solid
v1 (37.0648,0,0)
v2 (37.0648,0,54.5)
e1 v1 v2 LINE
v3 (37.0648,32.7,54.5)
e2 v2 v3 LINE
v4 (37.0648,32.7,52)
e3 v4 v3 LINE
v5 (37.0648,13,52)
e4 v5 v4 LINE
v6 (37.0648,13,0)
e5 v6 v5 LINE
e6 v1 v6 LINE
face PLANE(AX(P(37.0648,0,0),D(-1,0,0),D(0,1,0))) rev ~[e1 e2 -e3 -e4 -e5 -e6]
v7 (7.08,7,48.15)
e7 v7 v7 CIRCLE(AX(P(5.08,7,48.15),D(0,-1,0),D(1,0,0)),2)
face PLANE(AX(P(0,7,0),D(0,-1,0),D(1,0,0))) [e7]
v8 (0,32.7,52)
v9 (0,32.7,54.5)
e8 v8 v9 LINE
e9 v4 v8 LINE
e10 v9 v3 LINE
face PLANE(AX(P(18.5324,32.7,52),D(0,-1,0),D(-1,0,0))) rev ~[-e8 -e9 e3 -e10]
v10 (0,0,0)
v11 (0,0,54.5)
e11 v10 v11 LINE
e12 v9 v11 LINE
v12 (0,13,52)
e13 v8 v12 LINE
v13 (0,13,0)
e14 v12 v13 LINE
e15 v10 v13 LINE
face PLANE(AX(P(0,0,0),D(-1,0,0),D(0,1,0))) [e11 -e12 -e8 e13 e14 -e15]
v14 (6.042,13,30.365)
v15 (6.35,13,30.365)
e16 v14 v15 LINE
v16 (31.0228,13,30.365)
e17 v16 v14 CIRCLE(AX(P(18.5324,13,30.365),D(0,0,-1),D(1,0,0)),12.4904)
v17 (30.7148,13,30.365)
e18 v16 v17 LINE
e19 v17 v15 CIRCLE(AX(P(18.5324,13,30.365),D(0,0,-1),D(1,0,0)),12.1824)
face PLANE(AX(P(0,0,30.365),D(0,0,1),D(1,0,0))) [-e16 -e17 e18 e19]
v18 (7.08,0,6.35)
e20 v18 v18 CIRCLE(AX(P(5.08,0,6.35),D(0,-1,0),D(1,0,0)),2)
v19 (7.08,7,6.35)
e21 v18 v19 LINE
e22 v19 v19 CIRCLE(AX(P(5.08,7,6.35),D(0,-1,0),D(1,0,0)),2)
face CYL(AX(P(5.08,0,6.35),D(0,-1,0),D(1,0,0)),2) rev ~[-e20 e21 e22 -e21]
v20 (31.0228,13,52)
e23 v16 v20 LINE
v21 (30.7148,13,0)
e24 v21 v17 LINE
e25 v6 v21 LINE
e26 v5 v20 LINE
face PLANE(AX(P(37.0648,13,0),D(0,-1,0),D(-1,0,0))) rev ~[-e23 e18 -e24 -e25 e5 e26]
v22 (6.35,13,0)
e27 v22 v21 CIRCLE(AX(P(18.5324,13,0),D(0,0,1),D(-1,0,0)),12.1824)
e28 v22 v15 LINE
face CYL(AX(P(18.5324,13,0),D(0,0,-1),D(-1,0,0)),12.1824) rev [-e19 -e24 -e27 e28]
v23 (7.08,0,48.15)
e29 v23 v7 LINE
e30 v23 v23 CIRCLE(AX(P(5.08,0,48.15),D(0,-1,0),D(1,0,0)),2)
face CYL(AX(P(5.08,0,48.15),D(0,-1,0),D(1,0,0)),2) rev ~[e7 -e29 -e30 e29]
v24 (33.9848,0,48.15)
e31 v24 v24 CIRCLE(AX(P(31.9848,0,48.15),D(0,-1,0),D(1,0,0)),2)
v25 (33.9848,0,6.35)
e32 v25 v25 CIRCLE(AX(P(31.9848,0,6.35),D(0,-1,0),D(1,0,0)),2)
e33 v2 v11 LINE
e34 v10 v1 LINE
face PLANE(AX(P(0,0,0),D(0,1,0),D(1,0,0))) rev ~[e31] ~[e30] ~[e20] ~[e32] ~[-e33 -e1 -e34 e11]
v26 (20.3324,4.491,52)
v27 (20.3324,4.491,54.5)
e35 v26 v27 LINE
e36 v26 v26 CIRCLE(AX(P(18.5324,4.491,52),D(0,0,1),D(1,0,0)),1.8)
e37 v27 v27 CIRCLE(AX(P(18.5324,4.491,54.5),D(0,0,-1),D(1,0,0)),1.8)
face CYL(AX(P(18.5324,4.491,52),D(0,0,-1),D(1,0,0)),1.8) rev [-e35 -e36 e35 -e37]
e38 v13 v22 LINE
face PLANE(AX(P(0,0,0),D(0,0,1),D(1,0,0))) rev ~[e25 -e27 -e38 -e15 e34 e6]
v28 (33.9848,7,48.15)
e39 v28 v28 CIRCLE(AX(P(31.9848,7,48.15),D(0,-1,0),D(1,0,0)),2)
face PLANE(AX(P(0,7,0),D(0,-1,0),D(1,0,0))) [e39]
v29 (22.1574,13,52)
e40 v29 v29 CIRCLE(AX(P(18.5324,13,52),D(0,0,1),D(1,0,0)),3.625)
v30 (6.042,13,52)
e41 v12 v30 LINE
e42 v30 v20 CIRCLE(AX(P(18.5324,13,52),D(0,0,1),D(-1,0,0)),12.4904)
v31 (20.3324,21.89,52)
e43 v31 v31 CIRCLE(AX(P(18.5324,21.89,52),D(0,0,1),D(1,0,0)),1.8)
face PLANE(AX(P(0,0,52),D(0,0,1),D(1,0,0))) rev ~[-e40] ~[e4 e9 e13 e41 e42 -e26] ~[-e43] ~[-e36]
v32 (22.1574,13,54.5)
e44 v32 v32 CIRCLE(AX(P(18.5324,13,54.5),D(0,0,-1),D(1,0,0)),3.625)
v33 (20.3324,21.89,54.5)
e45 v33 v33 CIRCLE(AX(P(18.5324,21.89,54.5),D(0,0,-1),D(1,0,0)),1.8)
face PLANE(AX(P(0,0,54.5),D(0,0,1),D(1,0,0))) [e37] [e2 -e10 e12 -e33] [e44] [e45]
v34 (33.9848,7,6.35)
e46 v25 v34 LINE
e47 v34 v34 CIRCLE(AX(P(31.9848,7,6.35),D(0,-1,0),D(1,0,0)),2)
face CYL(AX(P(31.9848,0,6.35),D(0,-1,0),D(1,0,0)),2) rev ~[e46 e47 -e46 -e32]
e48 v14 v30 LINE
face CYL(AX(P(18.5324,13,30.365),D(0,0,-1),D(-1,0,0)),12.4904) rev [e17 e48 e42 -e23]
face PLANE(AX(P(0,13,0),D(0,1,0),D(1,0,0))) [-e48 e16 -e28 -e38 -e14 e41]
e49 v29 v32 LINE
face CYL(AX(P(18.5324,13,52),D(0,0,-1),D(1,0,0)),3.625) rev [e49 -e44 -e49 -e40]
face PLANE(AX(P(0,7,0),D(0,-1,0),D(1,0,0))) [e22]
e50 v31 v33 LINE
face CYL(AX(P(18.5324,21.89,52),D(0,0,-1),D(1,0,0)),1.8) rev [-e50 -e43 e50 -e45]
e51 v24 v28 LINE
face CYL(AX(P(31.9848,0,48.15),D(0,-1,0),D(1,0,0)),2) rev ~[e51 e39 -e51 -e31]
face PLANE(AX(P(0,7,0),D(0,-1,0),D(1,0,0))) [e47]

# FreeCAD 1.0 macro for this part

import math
import FreeCAD as App
import Part
import Sketcher
from FreeCAD import Vector
Q = App.Units.Quantity


def add_polygon(sketch, points):
    """Adds a closed chain of lines whose ends are joined by coincident constraints."""
    first, n = sketch.GeometryCount, len(points)
    for a, b in zip(points, points[1:] + points[:1]):
        sketch.addGeometry(Part.LineSegment(App.Vector(*a, 0), App.Vector(*b, 0)), False)
    for i in range(n):
        sketch.addConstraint(Sketcher.Constraint("Coincident", first + i, 2, first + (i + 1) % n, 1))

doc = App.newDocument("Part")
body = doc.addObject("PartDesign::Body", "Body")

# Sketch on XY plane
sketch1 = doc.addObject("Sketcher::SketchObject", "Sketch")
body.addObject(sketch1)
sketch1.AttachmentSupport = (doc.XY_Plane, [""])
sketch1.MapMode = "FlatFace"
sketch1.addGeometry(Part.LineSegment(Vector(0, 13, 0), Vector(0, 0, 0)), False)
sketch1.addGeometry(Part.LineSegment(Vector(0, 0, 0), Vector(37.0648, 0, 0)), False)
sketch1.addGeometry(Part.LineSegment(Vector(37.0648, 0, 0), Vector(37.0648, 13, 0)), False)
sketch1.addGeometry(Part.LineSegment(Vector(37.0648, 13, 0), Vector(30.7148, 13, 0)), False)
sketch1.addGeometry(Part.ArcOfCircle(Part.Circle(Vector(18.5324, 13, 0), Vector(0, 0, 1), 12.1824), math.radians(180), math.radians(360)), False)
sketch1.addGeometry(Part.LineSegment(Vector(6.35, 13, 0), Vector(0, 13, 0)), False)
sketch1.addConstraint(Sketcher.Constraint("Coincident", 0, 2, 1, 1))
sketch1.addConstraint(Sketcher.Constraint("Coincident", 1, 2, 2, 1))
sketch1.addConstraint(Sketcher.Constraint("Coincident", 2, 2, 3, 1))
sketch1.addConstraint(Sketcher.Constraint("Coincident", 3, 2, 4, 2))
sketch1.addConstraint(Sketcher.Constraint("Coincident", 4, 1, 5, 1))
sketch1.addConstraint(Sketcher.Constraint("Coincident", 5, 2, 0, 1))
sketch1.addConstraint(Sketcher.Constraint("Vertical", 0))
sketch1.addConstraint(Sketcher.Constraint("Horizontal", 1))
sketch1.addConstraint(Sketcher.Constraint("Vertical", 2))
sketch1.addConstraint(Sketcher.Constraint("Horizontal", 3))
sketch1.addConstraint(Sketcher.Constraint("Horizontal", 5))
sketch1.addConstraint(Sketcher.Constraint("Coincident", 0, 2, -1, 1))
sketch1.addConstraint(Sketcher.Constraint("Horizontal", 4, 3, 2, 2))
sketch1.addConstraint(Sketcher.Constraint("Horizontal", 3, 2, 4, 1))
sketch1.addConstraint(Sketcher.Constraint("Equal", 3, 5))
sketch1.addConstraint(Sketcher.Constraint("DistanceY", 0, 2, 0, 1, Q("13 mm")))
sketch1.addConstraint(Sketcher.Constraint("DistanceX", 3, 2, 3, 1, Q("6.35 mm")))
sketch1.addConstraint(Sketcher.Constraint("Radius", 4, Q("12.1824 mm")))
pad1 = doc.addObject("PartDesign::Pad", "Pad")
body.addObject(pad1)
pad1.Profile = sketch1
pad1.Length = 30.365

# Sketch on XY plane
sketch2 = doc.addObject("Sketcher::SketchObject", "Sketch001")
body.addObject(sketch2)
sketch2.AttachmentSupport = (doc.XY_Plane, [""])
sketch2.MapMode = "FlatFace"
sketch2.AttachmentOffset = App.Placement(Vector(0, 0, 30.365), App.Rotation())
sketch2.addGeometry(Part.LineSegment(Vector(6.042, 13, 0), Vector(0, 13, 0)), False)
sketch2.addGeometry(Part.LineSegment(Vector(0, 13, 0), Vector(0, 0, 0)), False)
sketch2.addGeometry(Part.LineSegment(Vector(0, 0, 0), Vector(37.0648, 0, 0)), False)
sketch2.addGeometry(Part.LineSegment(Vector(37.0648, 0, 0), Vector(37.0648, 13, 0)), False)
sketch2.addGeometry(Part.LineSegment(Vector(37.0648, 13, 0), Vector(31.0228, 13, 0)), False)
sketch2.addGeometry(Part.ArcOfCircle(Part.Circle(Vector(18.5324, 13, 0), Vector(0, 0, 1), 12.4904), math.radians(180), math.radians(360)), False)
sketch2.addConstraint(Sketcher.Constraint("Coincident", 0, 2, 1, 1))
sketch2.addConstraint(Sketcher.Constraint("Coincident", 1, 2, 2, 1))
sketch2.addConstraint(Sketcher.Constraint("Coincident", 2, 2, 3, 1))
sketch2.addConstraint(Sketcher.Constraint("Coincident", 3, 2, 4, 1))
sketch2.addConstraint(Sketcher.Constraint("Coincident", 4, 2, 5, 2))
sketch2.addConstraint(Sketcher.Constraint("Coincident", 5, 1, 0, 1))
sketch2.addConstraint(Sketcher.Constraint("Horizontal", 0))
sketch2.addConstraint(Sketcher.Constraint("Vertical", 1))
sketch2.addConstraint(Sketcher.Constraint("Horizontal", 2))
sketch2.addConstraint(Sketcher.Constraint("Vertical", 3))
sketch2.addConstraint(Sketcher.Constraint("Horizontal", 4))
sketch2.addConstraint(Sketcher.Constraint("Coincident", 1, 2, -1, 1))
sketch2.addConstraint(Sketcher.Constraint("Horizontal", 5, 3, 0, 2))
sketch2.addConstraint(Sketcher.Constraint("Horizontal", 0, 2, 3, 2))
sketch2.addConstraint(Sketcher.Constraint("Equal", 0, 4))
sketch2.addConstraint(Sketcher.Constraint("DistanceY", 1, 2, 1, 1, Q("13 mm")))
sketch2.addConstraint(Sketcher.Constraint("Radius", 5, Q("12.4904 mm")))
sketch2.addConstraint(Sketcher.Constraint("DistanceX", 0, 2, 0, 1, Q("6.042 mm")))
pad2 = doc.addObject("PartDesign::Pad", "Pad001")
body.addObject(pad2)
pad2.Profile = sketch2
pad2.Length = 21.635

# Sketch on XY plane
sketch3 = doc.addObject("Sketcher::SketchObject", "Sketch002")
body.addObject(sketch3)
sketch3.AttachmentSupport = (doc.XY_Plane, [""])
sketch3.MapMode = "FlatFace"
sketch3.AttachmentOffset = App.Placement(Vector(0, 0, 52), App.Rotation())
add_polygon(sketch3, [(0, 32.7), (0, 0), (37.0648, 0), (37.0648, 32.7)])  # lines 0-3
sketch3.addGeometry(Part.Circle(Vector(18.5324, 21.89, 0), Vector(0, 0, 1), 1.8), False)  # 4
sketch3.addGeometry(Part.Circle(Vector(18.5324, 13, 0), Vector(0, 0, 1), 3.625), False)  # 5
sketch3.addGeometry(Part.Circle(Vector(18.5324, 4.491, 0), Vector(0, 0, 1), 1.8), False)  # 6
sketch3.addConstraint(Sketcher.Constraint("Vertical", 0))
sketch3.addConstraint(Sketcher.Constraint("Horizontal", 1))
sketch3.addConstraint(Sketcher.Constraint("Vertical", 2))
sketch3.addConstraint(Sketcher.Constraint("Horizontal", 3))
sketch3.addConstraint(Sketcher.Constraint("Coincident", 0, 2, -1, 1))
sketch3.addConstraint(Sketcher.Constraint("Equal", 4, 6))
sketch3.addConstraint(Sketcher.Constraint("Vertical", 4, 3, 5, 3))
sketch3.addConstraint(Sketcher.Constraint("Vertical", 5, 3, 6, 3))
sketch3.addConstraint(Sketcher.Constraint("Diameter", 4, Q("3.6 mm")))
sketch3.addConstraint(Sketcher.Constraint("Diameter", 5, Q("7.25 mm")))
sketch3.addConstraint(Sketcher.Constraint("DistanceY", 0, 2, 0, 1, Q("32.7 mm")))
sketch3.addConstraint(Sketcher.Constraint("DistanceY", -1, 1, 5, 3, Q("13 mm")))
sketch3.addConstraint(Sketcher.Constraint("DistanceY", 5, 3, 4, 3, Q("8.89 mm")))
sketch3.addConstraint(Sketcher.Constraint("DistanceX", 1, 1, 1, 2, Q("37.0648 mm")))
sketch3.addConstraint(Sketcher.Constraint("DistanceY", 6, 3, 5, 3, Q("8.509 mm")))
sketch3.addConstraint(Sketcher.Constraint("DistanceX", -1, 1, 4, 3, Q("18.5324 mm")))
pad3 = doc.addObject("PartDesign::Pad", "Pad002")
body.addObject(pad3)
pad3.Profile = sketch3
pad3.Length = 2.5

# Sketch on XZ plane
sketch4 = doc.addObject("Sketcher::SketchObject", "Sketch003")
body.addObject(sketch4)
sketch4.AttachmentSupport = (doc.XZ_Plane, [""])
sketch4.MapMode = "FlatFace"
sketch4.addGeometry(Part.Circle(Vector(31.9848, 48.15, 0), Vector(0, 0, 1), 2), False)
sketch4.addGeometry(Part.Circle(Vector(5.08, 48.15, 0), Vector(0, 0, 1), 2), False)
sketch4.addGeometry(Part.Circle(Vector(31.9848, 6.35, 0), Vector(0, 0, 1), 2), False)
sketch4.addGeometry(Part.Circle(Vector(5.08, 6.35, 0), Vector(0, 0, 1), 2), False)
sketch4.addConstraint(Sketcher.Constraint("Equal", 0, 1))
sketch4.addConstraint(Sketcher.Constraint("Equal", 1, 2))
sketch4.addConstraint(Sketcher.Constraint("Equal", 2, 3))
sketch4.addConstraint(Sketcher.Constraint("Horizontal", 0, 3, 1, 3))
sketch4.addConstraint(Sketcher.Constraint("Horizontal", 2, 3, 3, 3))
sketch4.addConstraint(Sketcher.Constraint("Vertical", 0, 3, 2, 3))
sketch4.addConstraint(Sketcher.Constraint("Vertical", 1, 3, 3, 3))
sketch4.addConstraint(Sketcher.Constraint("Diameter", 0, Q("4 mm")))
sketch4.addConstraint(Sketcher.Constraint("DistanceY", 2, 3, 0, 3, Q("41.8 mm")))
sketch4.addConstraint(Sketcher.Constraint("DistanceX", -1, 1, 1, 3, Q("5.08 mm")))
sketch4.addConstraint(Sketcher.Constraint("DistanceY", -1, 1, 2, 3, Q("6.35 mm")))
sketch4.addConstraint(Sketcher.Constraint("DistanceX", 1, 3, 0, 3, Q("26.9048 mm")))
pocket1 = doc.addObject("PartDesign::Pocket", "Pocket")
body.addObject(pocket1)
pocket1.Profile = sketch4
pocket1.Length = 7

doc.recompute()
